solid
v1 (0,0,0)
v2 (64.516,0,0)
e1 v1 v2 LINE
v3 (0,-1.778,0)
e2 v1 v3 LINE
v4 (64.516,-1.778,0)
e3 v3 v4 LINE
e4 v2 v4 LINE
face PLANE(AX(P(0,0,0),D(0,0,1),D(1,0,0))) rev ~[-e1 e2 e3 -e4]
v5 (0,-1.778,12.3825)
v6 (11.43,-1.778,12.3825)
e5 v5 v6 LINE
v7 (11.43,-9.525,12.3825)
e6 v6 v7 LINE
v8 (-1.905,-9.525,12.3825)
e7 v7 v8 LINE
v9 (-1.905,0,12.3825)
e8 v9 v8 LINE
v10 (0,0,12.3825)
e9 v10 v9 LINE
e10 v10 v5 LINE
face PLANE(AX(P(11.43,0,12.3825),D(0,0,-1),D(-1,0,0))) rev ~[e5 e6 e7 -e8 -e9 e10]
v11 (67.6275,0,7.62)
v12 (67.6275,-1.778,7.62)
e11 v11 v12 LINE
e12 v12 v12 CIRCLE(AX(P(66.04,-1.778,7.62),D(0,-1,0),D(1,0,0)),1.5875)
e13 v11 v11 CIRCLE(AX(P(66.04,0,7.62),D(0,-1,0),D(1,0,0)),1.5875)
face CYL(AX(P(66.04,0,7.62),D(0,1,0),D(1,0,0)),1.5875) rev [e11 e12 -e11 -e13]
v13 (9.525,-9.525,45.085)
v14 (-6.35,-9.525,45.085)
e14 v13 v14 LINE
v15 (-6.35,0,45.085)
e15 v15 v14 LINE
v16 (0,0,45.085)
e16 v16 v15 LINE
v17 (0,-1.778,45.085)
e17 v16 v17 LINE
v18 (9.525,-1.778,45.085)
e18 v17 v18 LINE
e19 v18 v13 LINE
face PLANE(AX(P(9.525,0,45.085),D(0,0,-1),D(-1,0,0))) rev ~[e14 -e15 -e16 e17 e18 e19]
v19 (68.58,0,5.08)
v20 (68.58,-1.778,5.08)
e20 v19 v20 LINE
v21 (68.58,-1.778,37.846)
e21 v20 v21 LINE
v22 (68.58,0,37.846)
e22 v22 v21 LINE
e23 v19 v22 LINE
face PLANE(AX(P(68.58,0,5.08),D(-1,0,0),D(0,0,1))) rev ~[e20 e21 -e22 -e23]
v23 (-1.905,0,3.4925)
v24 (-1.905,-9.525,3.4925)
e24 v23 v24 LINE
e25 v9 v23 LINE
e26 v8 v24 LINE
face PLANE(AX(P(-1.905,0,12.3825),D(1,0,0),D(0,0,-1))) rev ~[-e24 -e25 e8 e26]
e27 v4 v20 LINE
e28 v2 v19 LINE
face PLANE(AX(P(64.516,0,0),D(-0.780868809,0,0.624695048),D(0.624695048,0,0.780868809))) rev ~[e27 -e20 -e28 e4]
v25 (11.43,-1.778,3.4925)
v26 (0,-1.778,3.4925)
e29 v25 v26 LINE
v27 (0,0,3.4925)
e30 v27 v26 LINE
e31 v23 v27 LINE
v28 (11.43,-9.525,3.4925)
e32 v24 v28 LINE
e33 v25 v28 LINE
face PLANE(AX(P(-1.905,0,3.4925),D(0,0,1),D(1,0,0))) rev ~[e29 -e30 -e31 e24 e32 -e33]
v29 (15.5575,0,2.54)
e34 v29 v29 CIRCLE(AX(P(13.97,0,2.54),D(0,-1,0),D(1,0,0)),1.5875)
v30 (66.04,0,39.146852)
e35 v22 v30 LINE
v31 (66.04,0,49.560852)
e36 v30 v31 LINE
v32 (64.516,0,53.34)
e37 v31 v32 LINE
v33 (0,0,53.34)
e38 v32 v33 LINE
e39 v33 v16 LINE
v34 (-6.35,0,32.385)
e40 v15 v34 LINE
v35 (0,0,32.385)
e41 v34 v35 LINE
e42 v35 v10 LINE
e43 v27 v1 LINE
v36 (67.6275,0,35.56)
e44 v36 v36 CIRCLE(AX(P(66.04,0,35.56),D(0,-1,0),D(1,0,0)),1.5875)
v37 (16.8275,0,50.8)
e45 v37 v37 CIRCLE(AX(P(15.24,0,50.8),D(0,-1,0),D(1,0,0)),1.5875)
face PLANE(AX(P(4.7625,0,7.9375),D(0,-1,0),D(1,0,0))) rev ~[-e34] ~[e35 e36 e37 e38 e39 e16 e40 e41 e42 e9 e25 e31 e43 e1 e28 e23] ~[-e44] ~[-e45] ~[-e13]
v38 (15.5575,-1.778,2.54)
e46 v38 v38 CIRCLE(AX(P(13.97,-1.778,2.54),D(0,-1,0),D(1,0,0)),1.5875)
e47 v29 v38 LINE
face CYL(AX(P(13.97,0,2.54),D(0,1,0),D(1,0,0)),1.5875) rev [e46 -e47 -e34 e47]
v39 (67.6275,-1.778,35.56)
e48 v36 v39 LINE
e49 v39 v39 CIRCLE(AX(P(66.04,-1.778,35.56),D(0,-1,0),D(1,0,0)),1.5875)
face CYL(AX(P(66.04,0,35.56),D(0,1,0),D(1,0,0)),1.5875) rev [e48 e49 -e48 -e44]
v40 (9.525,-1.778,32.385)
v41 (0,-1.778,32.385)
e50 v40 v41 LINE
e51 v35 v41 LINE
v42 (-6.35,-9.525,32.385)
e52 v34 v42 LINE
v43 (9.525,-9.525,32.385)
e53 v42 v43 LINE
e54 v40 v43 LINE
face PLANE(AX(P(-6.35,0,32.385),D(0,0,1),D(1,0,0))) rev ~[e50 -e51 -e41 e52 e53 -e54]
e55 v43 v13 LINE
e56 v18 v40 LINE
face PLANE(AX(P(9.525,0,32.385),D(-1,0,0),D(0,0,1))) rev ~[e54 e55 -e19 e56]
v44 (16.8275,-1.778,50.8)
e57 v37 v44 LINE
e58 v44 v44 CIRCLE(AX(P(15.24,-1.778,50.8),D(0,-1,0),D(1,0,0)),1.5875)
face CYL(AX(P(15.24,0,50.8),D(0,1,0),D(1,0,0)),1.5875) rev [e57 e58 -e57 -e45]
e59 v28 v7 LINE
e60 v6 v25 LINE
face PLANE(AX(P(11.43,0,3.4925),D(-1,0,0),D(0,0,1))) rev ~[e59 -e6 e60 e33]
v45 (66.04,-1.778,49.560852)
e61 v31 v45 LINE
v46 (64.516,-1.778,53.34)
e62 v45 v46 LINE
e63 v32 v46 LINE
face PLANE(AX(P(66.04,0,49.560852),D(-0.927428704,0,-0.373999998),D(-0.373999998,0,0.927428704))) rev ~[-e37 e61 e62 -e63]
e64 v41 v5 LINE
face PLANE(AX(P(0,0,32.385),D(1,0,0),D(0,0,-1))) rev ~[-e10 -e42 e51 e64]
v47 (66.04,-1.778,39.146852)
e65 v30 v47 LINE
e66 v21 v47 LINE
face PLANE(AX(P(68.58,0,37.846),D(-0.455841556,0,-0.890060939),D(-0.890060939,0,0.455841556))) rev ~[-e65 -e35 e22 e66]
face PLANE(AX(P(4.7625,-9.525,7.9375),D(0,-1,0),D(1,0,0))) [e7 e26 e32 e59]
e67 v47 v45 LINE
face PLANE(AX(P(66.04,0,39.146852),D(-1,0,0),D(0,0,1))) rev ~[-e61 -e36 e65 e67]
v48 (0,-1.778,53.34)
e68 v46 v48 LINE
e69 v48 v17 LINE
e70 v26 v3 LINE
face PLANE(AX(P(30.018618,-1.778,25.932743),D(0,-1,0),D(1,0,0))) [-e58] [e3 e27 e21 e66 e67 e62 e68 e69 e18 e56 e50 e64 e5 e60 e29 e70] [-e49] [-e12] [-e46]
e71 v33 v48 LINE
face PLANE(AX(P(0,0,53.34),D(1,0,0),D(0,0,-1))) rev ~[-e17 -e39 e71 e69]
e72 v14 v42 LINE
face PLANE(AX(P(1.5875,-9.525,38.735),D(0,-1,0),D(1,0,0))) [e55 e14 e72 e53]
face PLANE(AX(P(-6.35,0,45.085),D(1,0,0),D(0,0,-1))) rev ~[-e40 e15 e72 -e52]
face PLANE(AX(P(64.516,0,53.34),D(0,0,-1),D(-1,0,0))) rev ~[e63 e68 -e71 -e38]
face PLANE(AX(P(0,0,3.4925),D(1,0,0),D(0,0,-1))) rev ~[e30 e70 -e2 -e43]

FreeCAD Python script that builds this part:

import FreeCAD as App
import Part
import Sketcher

V = App.Vector
Q = App.Units.Quantity


def add_polygon(sketch, points):
    """Adds a closed chain of lines whose ends are joined by coincident constraints."""
    first, n = sketch.GeometryCount, len(points)
    for a, b in zip(points, points[1:] + points[:1]):
        sketch.addGeometry(Part.LineSegment(App.Vector(*a, 0), App.Vector(*b, 0)), False)
    for i in range(n):
        sketch.addConstraint(Sketcher.Constraint("Coincident", first + i, 2, first + (i + 1) % n, 1))

doc = App.newDocument("Part")
body = doc.addObject("PartDesign::Body", "Body")

# Sketch on XZ plane
sketch1 = body.newObject("Sketcher::SketchObject", "Sketch")
sketch1.AttachmentSupport = (doc.getObject("XZ_Plane"), [""])
sketch1.MapMode = "FlatFace"
add_polygon(sketch1, [(0, 0), (64.5, 0), (68.6, 5.1), (68.6, 37.8), (66, 39.1), (66, 49.6), (64.5, 53.3), (0, 53.3), (0, 45.1), (9.5, 45.1), (9.5, 32.4), (0, 32.4), (0, 12.4), (11.4, 12.4), (11.4, 3.5), (0, 3.5)])  # lines 0-15
sketch1.addGeometry(Part.Circle(V(14, 2.5, 0), V(0, 0, 1), 1.6), False)  # 16
sketch1.addGeometry(Part.Circle(V(66, 7.6, 0), V(0, 0, 1), 1.6), False)  # 17
sketch1.addGeometry(Part.Circle(V(15.2, 50.8, 0), V(0, 0, 1), 1.6), False)  # 18
sketch1.addGeometry(Part.Circle(V(66, 35.6, 0), V(0, 0, 1), 1.6), False)  # 19
sketch1.addConstraint([
    Sketcher.Constraint("Horizontal", 0),
    Sketcher.Constraint("Vertical", 2),
    Sketcher.Constraint("Vertical", 4),
    Sketcher.Constraint("Horizontal", 6),
    Sketcher.Constraint("Vertical", 7),
    Sketcher.Constraint("Horizontal", 8),
    Sketcher.Constraint("Vertical", 9),
    Sketcher.Constraint("Horizontal", 10),
    Sketcher.Constraint("Vertical", 11),
    Sketcher.Constraint("Horizontal", 12),
    Sketcher.Constraint("Vertical", 13),
    Sketcher.Constraint("Horizontal", 14),
    Sketcher.Constraint("Vertical", 15),
    Sketcher.Constraint("Coincident", 15, 2, -1, 1),
    Sketcher.Constraint("Equal", 16, 17),
    Sketcher.Constraint("Equal", 17, 18),
    Sketcher.Constraint("Equal", 18, 19),
    Sketcher.Constraint("PointOnObject", 6, 2, -2),
    Sketcher.Constraint("PointOnObject", 10, 2, -2),
    Sketcher.Constraint("Vertical", 17, 3, 19, 3),
    Sketcher.Constraint("Vertical", 19, 3, 3, 2),
    Sketcher.Constraint("Vertical", 0, 2, 5, 2),
    Sketcher.Constraint("Diameter", 16, Q("0.125 in")),
    Sketcher.Constraint("DistanceY", 9, 2, 9, 1, Q("0.5 in")),
    Sketcher.Constraint("DistanceY", -1, 1, 18, 3, Q("2 in")),
    Sketcher.Constraint("DistanceX", 18, 3, 17, 3, Q("2 in")),
    Sketcher.Constraint("DistanceY", 16, 3, 6, 2, Q("2 in")),
    Sketcher.Constraint("DistanceX", 0, 1, 0, 2, Q("2.54 in")),
    Sketcher.Constraint("DistanceX", 12, 1, 12, 2, Q("0.45 in")),
    Sketcher.Constraint("DistanceY", 2, 1, 2, 2, Q("1.29 in")),
    Sketcher.Constraint("DistanceY", 4, 1, 4, 2, Q("0.41 in")),
    Sketcher.Constraint("DistanceY", 13, 2, 13, 1, Q("0.35 in")),
    Sketcher.Constraint("DistanceY", -1, 1, 16, 3, Q("0.1 in")),
    Sketcher.Constraint("DistanceX", -1, 1, 17, 3, Q("2.6 in")),
    Sketcher.Constraint("DistanceY", -1, 1, 17, 3, Q("0.3 in")),
    Sketcher.Constraint("DistanceY", -1, 1, 19, 3, Q("1.4 in")),
    Sketcher.Constraint("DistanceX", -1, 1, 1, 2, Q("2.7 in")),
    Sketcher.Constraint("DistanceY", -1, 1, 1, 2, Q("0.2 in")),
    Sketcher.Constraint("DistanceX", 12, 2, 16, 3, Q("0.1 in")),
    Sketcher.Constraint("DistanceX", 8, 1, 8, 2, Q("0.375 in")),
    Sketcher.Constraint("DistanceY", 7, 2, 7, 1, Q("0.325 in")),
    Sketcher.Constraint("DistanceY", 11, 2, 11, 1, Q("0.7875 in")),
    Sketcher.Constraint("DistanceY", -1, 1, 4, 2, Q("49.560852 mm")),
])
pad1 = body.newObject("PartDesign::Pad", "Pad")
pad1.Profile = sketch1
pad1.Length = Q("0.07 in")

# Sketch on XZ plane
sketch2 = body.newObject("Sketcher::SketchObject", "Sketch001")
sketch2.AttachmentSupport = (doc.getObject("XZ_Plane"), [""])
sketch2.MapMode = "FlatFace"
add_polygon(sketch2, [(-2, 3), (11, 3), (11, 12), (-2, 12)])  # lines 0-3
add_polygon(sketch2, [(-6, 32), (10, 32), (10, 45), (-6, 45)])  # lines 4-7
sketch2.addConstraint([
    Sketcher.Constraint("Horizontal", 0),
    Sketcher.Constraint("Vertical", 1),
    Sketcher.Constraint("Horizontal", 2),
    Sketcher.Constraint("Vertical", 3),
    Sketcher.Constraint("Horizontal", 4),
    Sketcher.Constraint("Vertical", 5),
    Sketcher.Constraint("Horizontal", 6),
    Sketcher.Constraint("Vertical", 7),
    Sketcher.Constraint("DistanceY", 5, 1, 5, 2, Q("0.5 in")),
    Sketcher.Constraint("DistanceY", 1, 1, 1, 2, Q("0.35 in")),
    Sketcher.Constraint("DistanceX", 6, 2, 1, 2, Q("0.7 in")),
    Sketcher.Constraint("DistanceX", 0, 1, 0, 2, Q("0.525 in")),
    Sketcher.Constraint("DistanceX", 4, 1, 4, 2, Q("0.625 in")),
    Sketcher.Constraint("DistanceX", -1, 1, 0, 2, Q("0.45 in")),
    Sketcher.Constraint("DistanceY", -1, 1, 4, 2, Q("1.275 in")),
    Sketcher.Constraint("DistanceY", -1, 1, 0, 2, Q("0.1375 in")),
])
pad2 = body.newObject("PartDesign::Pad", "Pad001")
pad2.Profile = sketch2
pad2.Length = Q("0.375 in")

doc.recompute()
